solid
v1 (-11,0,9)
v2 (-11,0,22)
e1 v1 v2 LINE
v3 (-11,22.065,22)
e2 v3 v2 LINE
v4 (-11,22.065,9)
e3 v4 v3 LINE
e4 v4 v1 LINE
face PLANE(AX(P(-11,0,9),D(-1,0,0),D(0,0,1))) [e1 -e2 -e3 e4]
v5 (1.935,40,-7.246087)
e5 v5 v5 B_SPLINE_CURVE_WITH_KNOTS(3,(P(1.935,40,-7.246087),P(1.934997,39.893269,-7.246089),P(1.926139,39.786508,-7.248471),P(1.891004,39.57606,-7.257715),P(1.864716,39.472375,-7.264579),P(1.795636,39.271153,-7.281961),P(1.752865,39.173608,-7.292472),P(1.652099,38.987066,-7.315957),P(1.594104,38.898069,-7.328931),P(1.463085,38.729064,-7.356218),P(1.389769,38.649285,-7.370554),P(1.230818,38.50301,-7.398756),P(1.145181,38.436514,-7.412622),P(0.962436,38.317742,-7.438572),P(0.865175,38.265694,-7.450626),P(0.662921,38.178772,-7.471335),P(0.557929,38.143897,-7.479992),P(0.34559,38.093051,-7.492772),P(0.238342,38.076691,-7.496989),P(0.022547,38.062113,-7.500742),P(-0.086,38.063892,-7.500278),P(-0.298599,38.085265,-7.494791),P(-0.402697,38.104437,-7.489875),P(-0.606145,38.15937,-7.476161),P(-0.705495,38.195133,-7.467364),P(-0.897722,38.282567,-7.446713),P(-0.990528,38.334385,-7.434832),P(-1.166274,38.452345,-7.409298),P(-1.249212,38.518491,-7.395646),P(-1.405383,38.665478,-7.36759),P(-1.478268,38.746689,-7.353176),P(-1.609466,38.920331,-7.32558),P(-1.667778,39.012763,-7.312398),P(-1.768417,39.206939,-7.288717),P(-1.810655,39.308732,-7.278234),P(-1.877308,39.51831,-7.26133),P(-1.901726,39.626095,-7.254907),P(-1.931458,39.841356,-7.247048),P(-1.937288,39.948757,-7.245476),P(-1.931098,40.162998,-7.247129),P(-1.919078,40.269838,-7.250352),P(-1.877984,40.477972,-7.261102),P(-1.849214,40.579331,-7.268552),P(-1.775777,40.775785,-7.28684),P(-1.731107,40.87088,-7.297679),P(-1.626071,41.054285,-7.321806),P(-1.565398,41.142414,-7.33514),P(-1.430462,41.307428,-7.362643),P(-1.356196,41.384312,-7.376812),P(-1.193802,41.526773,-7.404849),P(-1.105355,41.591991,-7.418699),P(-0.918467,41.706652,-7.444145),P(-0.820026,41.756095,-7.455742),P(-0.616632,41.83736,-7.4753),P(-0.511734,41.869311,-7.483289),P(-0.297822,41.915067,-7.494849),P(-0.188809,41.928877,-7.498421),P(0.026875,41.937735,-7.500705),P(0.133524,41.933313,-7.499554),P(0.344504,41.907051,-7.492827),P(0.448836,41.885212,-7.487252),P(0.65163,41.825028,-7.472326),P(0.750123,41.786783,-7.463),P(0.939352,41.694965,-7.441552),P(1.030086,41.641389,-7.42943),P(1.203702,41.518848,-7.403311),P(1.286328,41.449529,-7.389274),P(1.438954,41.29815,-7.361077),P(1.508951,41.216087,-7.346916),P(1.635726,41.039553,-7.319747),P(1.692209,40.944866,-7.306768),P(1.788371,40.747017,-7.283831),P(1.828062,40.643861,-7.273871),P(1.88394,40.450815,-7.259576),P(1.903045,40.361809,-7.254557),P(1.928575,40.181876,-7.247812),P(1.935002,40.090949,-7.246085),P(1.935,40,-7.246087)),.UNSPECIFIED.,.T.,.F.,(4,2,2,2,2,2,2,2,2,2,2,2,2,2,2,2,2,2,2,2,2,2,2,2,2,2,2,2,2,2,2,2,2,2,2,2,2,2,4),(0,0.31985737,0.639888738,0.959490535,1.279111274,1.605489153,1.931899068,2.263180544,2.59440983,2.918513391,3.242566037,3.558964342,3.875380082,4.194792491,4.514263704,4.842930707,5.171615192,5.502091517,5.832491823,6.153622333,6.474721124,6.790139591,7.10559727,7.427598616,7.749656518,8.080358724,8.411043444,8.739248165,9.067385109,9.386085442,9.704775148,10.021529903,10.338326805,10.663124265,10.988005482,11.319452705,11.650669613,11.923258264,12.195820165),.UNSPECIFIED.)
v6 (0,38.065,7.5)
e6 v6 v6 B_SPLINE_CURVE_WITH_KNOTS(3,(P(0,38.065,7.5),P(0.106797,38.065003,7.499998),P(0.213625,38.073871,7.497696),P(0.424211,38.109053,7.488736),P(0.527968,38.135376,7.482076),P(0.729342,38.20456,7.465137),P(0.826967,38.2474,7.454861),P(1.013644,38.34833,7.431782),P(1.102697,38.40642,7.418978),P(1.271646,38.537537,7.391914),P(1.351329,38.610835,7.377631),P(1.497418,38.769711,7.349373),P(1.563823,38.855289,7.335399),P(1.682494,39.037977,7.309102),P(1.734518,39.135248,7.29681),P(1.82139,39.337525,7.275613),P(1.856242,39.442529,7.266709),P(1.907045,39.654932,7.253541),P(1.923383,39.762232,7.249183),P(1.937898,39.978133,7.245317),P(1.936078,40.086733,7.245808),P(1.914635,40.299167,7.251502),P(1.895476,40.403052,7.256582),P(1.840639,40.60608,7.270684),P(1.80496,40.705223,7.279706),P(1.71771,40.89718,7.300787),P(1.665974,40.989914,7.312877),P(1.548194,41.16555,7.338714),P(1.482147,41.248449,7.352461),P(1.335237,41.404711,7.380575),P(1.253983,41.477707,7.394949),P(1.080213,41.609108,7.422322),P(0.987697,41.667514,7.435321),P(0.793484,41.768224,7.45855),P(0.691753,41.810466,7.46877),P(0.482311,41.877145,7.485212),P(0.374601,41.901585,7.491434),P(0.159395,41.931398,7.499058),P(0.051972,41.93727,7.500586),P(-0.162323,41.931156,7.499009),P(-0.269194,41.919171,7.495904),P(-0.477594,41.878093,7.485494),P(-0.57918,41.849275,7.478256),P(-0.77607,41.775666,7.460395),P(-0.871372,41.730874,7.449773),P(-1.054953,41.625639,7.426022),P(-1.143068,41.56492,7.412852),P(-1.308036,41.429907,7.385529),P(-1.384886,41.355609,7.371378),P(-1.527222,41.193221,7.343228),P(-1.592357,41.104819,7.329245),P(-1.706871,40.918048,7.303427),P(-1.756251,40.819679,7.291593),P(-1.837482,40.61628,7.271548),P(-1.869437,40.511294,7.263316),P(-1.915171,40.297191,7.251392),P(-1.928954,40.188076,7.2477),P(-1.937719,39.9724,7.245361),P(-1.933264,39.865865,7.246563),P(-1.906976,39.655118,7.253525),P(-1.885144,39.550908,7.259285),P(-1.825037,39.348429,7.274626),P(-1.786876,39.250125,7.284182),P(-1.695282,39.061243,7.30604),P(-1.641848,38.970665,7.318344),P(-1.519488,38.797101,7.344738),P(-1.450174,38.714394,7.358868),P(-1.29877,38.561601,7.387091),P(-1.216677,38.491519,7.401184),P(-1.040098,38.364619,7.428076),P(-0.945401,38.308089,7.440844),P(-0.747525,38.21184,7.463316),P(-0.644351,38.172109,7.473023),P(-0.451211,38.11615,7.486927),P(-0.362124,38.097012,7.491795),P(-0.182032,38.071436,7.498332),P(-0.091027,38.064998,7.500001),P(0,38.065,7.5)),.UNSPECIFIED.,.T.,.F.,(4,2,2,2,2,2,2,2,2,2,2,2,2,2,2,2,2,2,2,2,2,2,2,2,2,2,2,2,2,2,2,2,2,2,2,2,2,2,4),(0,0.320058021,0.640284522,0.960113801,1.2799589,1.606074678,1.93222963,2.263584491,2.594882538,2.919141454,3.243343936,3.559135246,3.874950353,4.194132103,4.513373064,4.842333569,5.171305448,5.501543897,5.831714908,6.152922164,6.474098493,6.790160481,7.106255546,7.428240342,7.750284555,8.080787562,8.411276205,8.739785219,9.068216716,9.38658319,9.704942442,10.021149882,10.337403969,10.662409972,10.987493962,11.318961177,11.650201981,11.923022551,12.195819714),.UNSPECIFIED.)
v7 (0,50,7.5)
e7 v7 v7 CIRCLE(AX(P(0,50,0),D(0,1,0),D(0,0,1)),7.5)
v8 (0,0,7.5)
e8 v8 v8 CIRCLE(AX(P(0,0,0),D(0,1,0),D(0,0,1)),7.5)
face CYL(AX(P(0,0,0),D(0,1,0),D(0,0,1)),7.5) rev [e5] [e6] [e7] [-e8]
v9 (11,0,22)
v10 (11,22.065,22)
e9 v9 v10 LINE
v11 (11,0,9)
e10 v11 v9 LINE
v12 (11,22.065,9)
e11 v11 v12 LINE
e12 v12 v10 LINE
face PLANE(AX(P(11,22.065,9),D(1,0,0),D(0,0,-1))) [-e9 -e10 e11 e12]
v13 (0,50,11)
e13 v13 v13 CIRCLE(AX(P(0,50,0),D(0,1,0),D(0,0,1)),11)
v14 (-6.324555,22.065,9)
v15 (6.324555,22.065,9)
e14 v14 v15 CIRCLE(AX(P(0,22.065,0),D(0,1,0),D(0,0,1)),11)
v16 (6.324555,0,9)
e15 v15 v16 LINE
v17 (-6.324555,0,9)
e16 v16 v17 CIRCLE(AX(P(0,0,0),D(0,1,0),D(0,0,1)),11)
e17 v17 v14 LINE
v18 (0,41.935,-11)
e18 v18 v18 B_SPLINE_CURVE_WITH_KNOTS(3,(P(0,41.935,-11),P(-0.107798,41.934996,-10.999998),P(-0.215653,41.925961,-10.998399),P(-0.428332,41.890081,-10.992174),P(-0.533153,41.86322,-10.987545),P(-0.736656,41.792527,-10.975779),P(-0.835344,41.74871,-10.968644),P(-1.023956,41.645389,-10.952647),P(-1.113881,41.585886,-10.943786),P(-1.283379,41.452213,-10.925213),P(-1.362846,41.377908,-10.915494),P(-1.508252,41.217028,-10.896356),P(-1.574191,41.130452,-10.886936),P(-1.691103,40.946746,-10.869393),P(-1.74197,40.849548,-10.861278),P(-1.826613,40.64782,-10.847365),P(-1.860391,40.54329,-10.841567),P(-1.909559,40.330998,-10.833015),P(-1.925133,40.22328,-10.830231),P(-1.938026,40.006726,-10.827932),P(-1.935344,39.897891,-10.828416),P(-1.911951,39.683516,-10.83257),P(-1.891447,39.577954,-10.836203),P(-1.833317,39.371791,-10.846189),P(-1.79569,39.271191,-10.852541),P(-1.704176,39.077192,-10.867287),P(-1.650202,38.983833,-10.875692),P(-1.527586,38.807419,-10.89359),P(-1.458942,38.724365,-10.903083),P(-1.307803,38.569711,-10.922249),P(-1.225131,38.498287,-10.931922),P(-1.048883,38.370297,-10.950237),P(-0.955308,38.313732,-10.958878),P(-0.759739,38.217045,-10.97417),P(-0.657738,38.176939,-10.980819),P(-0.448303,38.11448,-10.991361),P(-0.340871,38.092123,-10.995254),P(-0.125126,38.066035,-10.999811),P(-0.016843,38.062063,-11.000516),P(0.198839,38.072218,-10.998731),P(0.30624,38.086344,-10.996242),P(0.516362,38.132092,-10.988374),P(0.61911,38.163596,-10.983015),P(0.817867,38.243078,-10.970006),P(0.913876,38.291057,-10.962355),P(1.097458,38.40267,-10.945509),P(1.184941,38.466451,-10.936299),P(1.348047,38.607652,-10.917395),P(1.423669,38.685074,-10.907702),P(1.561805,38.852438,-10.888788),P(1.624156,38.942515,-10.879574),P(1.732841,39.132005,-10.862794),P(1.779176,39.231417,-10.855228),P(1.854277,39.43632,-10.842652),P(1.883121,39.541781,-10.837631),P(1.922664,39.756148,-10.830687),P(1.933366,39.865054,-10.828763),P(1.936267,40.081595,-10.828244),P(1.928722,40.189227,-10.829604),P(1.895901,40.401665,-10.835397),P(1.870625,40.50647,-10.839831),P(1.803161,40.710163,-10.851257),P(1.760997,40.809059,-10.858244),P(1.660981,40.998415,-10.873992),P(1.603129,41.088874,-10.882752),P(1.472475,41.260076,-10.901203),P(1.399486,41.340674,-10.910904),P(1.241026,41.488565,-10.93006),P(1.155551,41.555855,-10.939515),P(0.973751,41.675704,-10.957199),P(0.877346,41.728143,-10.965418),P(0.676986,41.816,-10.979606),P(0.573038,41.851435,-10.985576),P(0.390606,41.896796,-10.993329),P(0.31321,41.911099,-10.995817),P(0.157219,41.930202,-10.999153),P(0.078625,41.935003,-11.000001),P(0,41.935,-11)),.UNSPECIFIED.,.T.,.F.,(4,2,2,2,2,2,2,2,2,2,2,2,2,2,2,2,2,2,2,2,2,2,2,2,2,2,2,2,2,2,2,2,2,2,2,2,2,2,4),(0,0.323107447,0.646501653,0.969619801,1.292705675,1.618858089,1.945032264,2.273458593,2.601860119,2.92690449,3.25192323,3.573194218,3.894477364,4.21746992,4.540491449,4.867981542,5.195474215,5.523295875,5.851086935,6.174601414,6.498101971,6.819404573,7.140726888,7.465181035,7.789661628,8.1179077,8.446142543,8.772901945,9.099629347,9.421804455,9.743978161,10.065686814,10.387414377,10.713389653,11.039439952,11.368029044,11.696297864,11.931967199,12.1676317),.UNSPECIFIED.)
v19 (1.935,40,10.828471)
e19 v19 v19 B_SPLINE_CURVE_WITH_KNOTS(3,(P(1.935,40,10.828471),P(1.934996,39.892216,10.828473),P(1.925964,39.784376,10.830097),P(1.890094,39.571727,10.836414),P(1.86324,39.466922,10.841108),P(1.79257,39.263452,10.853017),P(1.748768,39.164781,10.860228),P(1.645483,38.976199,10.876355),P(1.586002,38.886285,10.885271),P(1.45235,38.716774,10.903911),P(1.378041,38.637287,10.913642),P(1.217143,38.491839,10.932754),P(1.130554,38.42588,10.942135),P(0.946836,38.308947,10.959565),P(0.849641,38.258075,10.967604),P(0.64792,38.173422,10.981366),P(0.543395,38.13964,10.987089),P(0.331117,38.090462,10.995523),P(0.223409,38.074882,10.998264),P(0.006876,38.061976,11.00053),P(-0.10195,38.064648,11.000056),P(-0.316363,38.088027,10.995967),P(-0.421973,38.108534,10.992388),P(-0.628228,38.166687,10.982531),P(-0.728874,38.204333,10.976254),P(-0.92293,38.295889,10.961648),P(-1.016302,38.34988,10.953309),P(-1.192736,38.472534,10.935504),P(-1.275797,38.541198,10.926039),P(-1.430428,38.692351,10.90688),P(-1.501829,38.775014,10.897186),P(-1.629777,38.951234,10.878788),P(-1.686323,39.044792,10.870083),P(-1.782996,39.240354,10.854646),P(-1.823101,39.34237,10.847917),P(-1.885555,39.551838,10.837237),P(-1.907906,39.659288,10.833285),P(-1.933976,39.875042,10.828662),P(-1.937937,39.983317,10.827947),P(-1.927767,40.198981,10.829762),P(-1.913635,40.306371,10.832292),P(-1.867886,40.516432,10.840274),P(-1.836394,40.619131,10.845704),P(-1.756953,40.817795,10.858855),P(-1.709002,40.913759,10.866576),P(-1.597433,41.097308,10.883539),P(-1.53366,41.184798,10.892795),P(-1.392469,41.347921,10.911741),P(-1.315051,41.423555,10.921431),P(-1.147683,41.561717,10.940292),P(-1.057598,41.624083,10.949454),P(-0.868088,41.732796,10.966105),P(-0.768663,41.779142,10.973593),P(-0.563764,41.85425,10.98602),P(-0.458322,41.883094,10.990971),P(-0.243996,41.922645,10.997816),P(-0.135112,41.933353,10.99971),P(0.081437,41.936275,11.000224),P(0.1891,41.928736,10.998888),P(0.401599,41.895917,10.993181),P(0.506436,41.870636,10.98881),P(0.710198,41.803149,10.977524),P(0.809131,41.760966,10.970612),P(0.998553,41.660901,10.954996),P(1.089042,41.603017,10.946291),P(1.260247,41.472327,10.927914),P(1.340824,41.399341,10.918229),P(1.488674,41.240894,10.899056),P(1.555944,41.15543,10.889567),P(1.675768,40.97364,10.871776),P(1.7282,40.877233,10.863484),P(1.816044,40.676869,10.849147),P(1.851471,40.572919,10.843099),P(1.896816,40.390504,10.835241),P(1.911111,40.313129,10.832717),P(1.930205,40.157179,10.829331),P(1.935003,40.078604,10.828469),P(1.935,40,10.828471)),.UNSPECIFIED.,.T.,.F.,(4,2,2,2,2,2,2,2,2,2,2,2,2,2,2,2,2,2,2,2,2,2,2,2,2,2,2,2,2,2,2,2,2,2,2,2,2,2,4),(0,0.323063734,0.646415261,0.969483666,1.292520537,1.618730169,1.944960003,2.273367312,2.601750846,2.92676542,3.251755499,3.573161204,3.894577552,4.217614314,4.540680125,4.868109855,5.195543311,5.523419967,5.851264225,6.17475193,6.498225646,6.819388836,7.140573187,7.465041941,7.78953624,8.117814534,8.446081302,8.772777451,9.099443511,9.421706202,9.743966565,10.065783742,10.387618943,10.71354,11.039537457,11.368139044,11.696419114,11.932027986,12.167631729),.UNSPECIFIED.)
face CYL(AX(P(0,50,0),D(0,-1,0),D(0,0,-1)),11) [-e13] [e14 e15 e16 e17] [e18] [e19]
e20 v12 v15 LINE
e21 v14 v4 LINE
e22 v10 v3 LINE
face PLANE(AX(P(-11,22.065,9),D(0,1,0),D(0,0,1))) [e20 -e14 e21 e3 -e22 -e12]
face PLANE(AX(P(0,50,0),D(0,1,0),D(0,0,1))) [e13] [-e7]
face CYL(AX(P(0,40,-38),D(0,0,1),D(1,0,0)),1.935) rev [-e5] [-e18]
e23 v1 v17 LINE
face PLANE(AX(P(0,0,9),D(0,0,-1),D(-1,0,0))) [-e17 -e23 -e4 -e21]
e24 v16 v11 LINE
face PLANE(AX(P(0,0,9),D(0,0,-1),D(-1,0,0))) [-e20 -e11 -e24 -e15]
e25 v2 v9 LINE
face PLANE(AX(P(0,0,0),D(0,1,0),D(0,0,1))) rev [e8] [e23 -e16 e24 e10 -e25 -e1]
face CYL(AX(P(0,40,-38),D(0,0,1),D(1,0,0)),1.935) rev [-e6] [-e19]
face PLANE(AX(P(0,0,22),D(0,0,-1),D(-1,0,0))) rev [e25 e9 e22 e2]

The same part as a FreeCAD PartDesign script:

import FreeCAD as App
import Part
import Sketcher

doc = App.newDocument("Part")
body = doc.addObject("PartDesign::Body", "Body")

# Sketch on XZ plane
sketch1 = body.newObject("Sketcher::SketchObject", "Sketch")
sketch1.AttachmentSupport = (doc.getObject("XZ_Plane"), [""])
sketch1.MapMode = "FlatFace"
sketch1.addGeometry(Part.Circle(App.Vector(0, 0, 0), App.Vector(0, 0, 1), 11), False)
sketch1.addConstraint([
    Sketcher.Constraint("Coincident", 0, 3, -1, 1),
    Sketcher.Constraint("Diameter", 0, 22.0),
])
pad1 = body.newObject("PartDesign::Pad", "Pad")
pad1.Profile = sketch1
pad1.Length = 50
pad1.Reversed = True

# Sketch on XZ plane
sketch2 = body.newObject("Sketcher::SketchObject", "Sketch001")
sketch2.AttachmentSupport = (doc.getObject("XZ_Plane"), [""])
sketch2.MapMode = "FlatFace"
sketch2.AttachmentOffset = App.Placement(App.Vector(0, 0, -50), App.Rotation())
sketch2.addGeometry(Part.Circle(App.Vector(0, 0, 0), App.Vector(0, 0, 1), 8), False)
sketch2.addConstraint([
    Sketcher.Constraint("Coincident", 0, 3, -1, 1),
    Sketcher.Constraint("Diameter", 0, 15.0),
])
pocket1 = body.newObject("PartDesign::Pocket", "Pocket")
pocket1.Profile = sketch2
pocket1.Type = "ThroughAll"
pocket1.Reversed = True

# Sketch on XY plane
sketch3 = body.newObject("Sketcher::SketchObject", "Sketch002")
sketch3.AttachmentSupport = (doc.getObject("XY_Plane"), [""])
sketch3.MapMode = "FlatFace"
sketch3.AttachmentOffset = App.Placement(App.Vector(0, 0, 12), App.Rotation())
sketch3.addGeometry(Part.Circle(App.Vector(0, 40, 0), App.Vector(0, 0, 1), 1.9), False)
sketch3.addConstraint([
    Sketcher.Constraint("PointOnObject", 0, 3, -2),
    Sketcher.Constraint("Diameter", 0, 3.87),
    Sketcher.Constraint("DistanceY", -1, 1, 0, 3, 40.0),
])
pocket2 = body.newObject("PartDesign::Pocket", "Pocket001")
pocket2.Profile = sketch3
pocket2.Length = 50

# Sketch on XY plane
sketch4 = body.newObject("Sketcher::SketchObject", "Sketch003")
sketch4.AttachmentSupport = (doc.getObject("XY_Plane"), [""])
sketch4.MapMode = "FlatFace"
sketch4.AttachmentOffset = App.Placement(App.Vector(0, 0, 12), App.Rotation())
sketch4.addGeometry([
    Part.LineSegment(App.Vector(-11, 22, 0), App.Vector(-11, 0, 0)),
    Part.LineSegment(App.Vector(-11, 0, 0), App.Vector(11, 0, 0)),
    Part.LineSegment(App.Vector(11, 0, 0), App.Vector(11, 22, 0)),
    Part.LineSegment(App.Vector(11, 22, 0), App.Vector(-11, 22, 0)),
], False)
sketch4.addConstraint([
    Sketcher.Constraint("Coincident", 0, 2, 1, 1),
    Sketcher.Constraint("Coincident", 1, 2, 2, 1),
    Sketcher.Constraint("Coincident", 2, 2, 3, 1),
    Sketcher.Constraint("Coincident", 3, 2, 0, 1),
    Sketcher.Constraint("Vertical", 0),
    Sketcher.Constraint("Horizontal", 1),
    Sketcher.Constraint("Vertical", 2),
    Sketcher.Constraint("Horizontal", 3),
    Sketcher.Constraint("Symmetric", 0, 2, 1, 2, -1, 1),
    Sketcher.Constraint("DistanceX", 1, 1, 1, 2, 22.0),
    Sketcher.Constraint("DistanceY", 0, 2, 0, 1, 22.065),
])
pad2 = body.newObject("PartDesign::Pad", "Pad001")
pad2.Profile = sketch4
pad2.Type = "TwoLengths"
pad2.Length = 10
pad2.Length2 = 3

doc.recompute()
